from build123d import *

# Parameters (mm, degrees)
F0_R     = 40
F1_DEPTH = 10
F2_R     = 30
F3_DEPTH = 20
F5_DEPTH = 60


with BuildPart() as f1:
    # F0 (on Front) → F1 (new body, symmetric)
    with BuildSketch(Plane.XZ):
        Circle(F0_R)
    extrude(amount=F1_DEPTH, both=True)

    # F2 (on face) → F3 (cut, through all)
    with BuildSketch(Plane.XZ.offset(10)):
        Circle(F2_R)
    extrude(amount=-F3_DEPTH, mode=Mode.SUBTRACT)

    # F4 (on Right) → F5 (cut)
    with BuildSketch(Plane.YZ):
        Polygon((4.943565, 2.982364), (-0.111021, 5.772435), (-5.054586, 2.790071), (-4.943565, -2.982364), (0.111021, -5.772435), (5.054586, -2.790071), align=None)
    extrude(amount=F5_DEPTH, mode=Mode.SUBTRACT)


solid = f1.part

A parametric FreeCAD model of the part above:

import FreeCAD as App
import Part
import Sketcher

doc = App.newDocument("Part")
body = doc.addObject("PartDesign::Body", "Body")

# Sketch on XZ plane
sketch1 = body.newObject("Sketcher::SketchObject", "Sketch")
sketch1.AttachmentSupport = (doc.getObject("XZ_Plane"), [""])
sketch1.MapMode = "FlatFace"
sketch1.addGeometry(Part.Circle(App.Vector(0, 0, 0), App.Vector(0, 0, 1), 40), False)
sketch1.addConstraint([
    Sketcher.Constraint("Coincident", 0, 3, -1, 1),
    Sketcher.Constraint("Diameter", 0, 80.0),
])
pad1 = body.newObject("PartDesign::Pad", "Pad")
pad1.Profile = sketch1
pad1.Length = 20
pad1.Midplane = True

# Sketch on XZ plane
sketch2 = body.newObject("Sketcher::SketchObject", "Sketch001")
sketch2.AttachmentSupport = (doc.getObject("XZ_Plane"), [""])
sketch2.MapMode = "FlatFace"
sketch2.AttachmentOffset = App.Placement(App.Vector(0, 0, 10), App.Rotation())
sketch2.addGeometry(Part.Circle(App.Vector(0, 0, 0), App.Vector(0, 0, 1), 30), False)
sketch2.addConstraint([
    Sketcher.Constraint("Coincident", 0, 3, -1, 1),
    Sketcher.Constraint("Diameter", 0, 60.0),
])
pocket1 = body.newObject("PartDesign::Pocket", "Pocket")
pocket1.Profile = sketch2
pocket1.Type = "ThroughAll"

# Sketch on YZ plane
sketch3 = body.newObject("Sketcher::SketchObject", "Sketch002")
sketch3.AttachmentSupport = (doc.getObject("YZ_Plane"), [""])
sketch3.MapMode = "FlatFace"
sketch3.addGeometry([
    Part.LineSegment(App.Vector(5, 3, 0), App.Vector(0, 6, 0)),  # 0
    Part.LineSegment(App.Vector(0, 6, 0), App.Vector(-5, 3, 0)),  # 1
    Part.LineSegment(App.Vector(-5, 3, 0), App.Vector(-5, -3, 0)),  # 2
    Part.LineSegment(App.Vector(-5, -3, 0), App.Vector(0, -6, 0)),  # 3
    Part.LineSegment(App.Vector(0, -6, 0), App.Vector(5, -3, 0)),  # 4
    Part.LineSegment(App.Vector(5, -3, 0), App.Vector(5, 3, 0)),  # 5
], False)
sketch3.addConstraint([
    Sketcher.Constraint("Coincident", 0, 2, 1, 1),
    Sketcher.Constraint("Coincident", 1, 2, 2, 1),
    Sketcher.Constraint("Coincident", 2, 2, 3, 1),
    Sketcher.Constraint("Coincident", 3, 2, 4, 1),
    Sketcher.Constraint("Coincident", 4, 2, 5, 1),
    Sketcher.Constraint("Coincident", 5, 2, 0, 1),
    Sketcher.Constraint("Symmetric", 0, 2, 3, 2, -1, 1),
    Sketcher.Constraint("Symmetric", 1, 2, 4, 2, -1, 1),
    Sketcher.Constraint("Symmetric", 2, 2, 5, 2, -1, 1),
    Sketcher.Constraint("Equal", 0, 1),
    Sketcher.Constraint("Equal", 1, 2),
    Sketcher.Constraint("DistanceY", 2, 2, 0, 2, 8.754799),
    Sketcher.Constraint("DistanceX", 0, 2, -1, 1, 0.111021),
    Sketcher.Constraint("DistanceY", -1, 1, 1, 2, 2.790071),
    Sketcher.Constraint("DistanceX", 1, 2, 2, 2, 0.111021),
])
pocket2 = body.newObject("PartDesign::Pocket", "Pocket001")
pocket2.Profile = sketch3
pocket2.Length = 60
pocket2.Reversed = True

doc.recompute()
